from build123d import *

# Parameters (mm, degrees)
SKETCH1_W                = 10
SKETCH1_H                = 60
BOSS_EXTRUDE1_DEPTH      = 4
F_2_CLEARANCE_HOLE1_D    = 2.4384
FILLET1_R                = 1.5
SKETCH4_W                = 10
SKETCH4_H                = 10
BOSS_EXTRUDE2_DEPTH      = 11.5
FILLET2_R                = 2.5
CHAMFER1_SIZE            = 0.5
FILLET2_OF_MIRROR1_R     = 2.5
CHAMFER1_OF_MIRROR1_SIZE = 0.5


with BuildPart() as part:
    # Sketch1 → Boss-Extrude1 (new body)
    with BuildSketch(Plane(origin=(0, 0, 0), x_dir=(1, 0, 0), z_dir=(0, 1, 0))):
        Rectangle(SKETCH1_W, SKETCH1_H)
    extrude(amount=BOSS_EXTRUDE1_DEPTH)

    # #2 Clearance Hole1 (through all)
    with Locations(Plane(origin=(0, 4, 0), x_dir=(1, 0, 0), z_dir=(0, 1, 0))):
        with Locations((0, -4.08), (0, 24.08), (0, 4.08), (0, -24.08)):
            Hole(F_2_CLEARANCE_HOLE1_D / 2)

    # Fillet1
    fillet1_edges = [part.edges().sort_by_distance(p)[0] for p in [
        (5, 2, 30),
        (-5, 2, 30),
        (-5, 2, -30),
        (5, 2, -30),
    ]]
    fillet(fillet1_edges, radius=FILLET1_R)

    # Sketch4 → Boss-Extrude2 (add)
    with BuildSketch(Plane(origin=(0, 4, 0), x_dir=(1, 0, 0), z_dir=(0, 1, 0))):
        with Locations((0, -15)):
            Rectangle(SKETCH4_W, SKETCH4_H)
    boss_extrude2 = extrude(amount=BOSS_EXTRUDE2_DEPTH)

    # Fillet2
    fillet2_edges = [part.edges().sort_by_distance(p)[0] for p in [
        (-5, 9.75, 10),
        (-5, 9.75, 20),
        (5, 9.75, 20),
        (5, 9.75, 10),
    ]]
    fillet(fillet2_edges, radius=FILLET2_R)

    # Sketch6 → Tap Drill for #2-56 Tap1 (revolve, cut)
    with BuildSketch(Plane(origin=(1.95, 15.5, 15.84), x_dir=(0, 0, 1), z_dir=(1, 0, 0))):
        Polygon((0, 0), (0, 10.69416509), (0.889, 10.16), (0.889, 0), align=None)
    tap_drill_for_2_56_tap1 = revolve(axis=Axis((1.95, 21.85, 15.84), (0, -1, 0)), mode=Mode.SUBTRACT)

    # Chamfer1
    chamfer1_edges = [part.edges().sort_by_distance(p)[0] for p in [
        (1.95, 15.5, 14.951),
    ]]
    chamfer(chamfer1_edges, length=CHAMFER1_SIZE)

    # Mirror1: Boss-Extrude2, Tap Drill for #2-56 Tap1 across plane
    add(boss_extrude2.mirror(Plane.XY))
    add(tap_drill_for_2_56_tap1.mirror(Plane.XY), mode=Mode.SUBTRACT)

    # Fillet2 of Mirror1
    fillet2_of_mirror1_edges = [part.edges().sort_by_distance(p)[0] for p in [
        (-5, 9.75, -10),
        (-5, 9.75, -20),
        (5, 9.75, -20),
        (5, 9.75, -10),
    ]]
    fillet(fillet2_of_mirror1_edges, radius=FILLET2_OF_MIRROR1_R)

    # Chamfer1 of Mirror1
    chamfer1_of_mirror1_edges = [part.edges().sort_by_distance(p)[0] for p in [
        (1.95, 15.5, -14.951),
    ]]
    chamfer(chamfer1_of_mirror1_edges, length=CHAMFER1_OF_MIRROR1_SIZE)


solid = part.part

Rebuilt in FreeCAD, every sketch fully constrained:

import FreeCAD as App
import Part
import Sketcher

V = App.Vector
Q = App.Units.Quantity


def edges_at(feature, points):
    """Names of the edges that pass closest to the given points."""
    edges = feature.Shape.Edges
    near = lambda p: min(range(len(edges)), key=lambda i: edges[i].distToShape(Part.Vertex(*p))[0])
    return sorted({f"Edge{near(p) + 1}" for p in points})


def add_polygon(sketch, points):
    """Adds a closed chain of lines whose ends are joined by coincident constraints."""
    first, n = sketch.GeometryCount, len(points)
    for a, b in zip(points, points[1:] + points[:1]):
        sketch.addGeometry(Part.LineSegment(App.Vector(*a, 0), App.Vector(*b, 0)), False)
    for i in range(n):
        sketch.addConstraint(Sketcher.Constraint("Coincident", first + i, 2, first + (i + 1) % n, 1))

doc = App.newDocument("Part")
params = doc.addObject("Spreadsheet::Sheet", "Params")
for row, (alias, value) in enumerate([
    ("sketch1_width", "10 mm"),
    ("sketch1_height", "60 mm"),
    ("pad1_length", "4 mm"),
    ("hole_diameter", "2.4384 mm"),
    ("fillet_radius", "1.5 mm"),
    ("sketch3_width", "10 mm"),
    ("pad2_length", "11.5 mm"),
    ("fillet2_radius", "2.5 mm"),
    ("sketch4_width", "10.16 mm"),
    ("groove_angle", "360 deg"),
    ("chamfer_size", "0.5 mm"),
    ("fillet3_radius", "2.5 mm"),
    ("chamfer2_size", "0.5 mm"),
], start=1):
    params.set(f"A{row}", alias)
    params.set(f"B{row}", "=" + value)
    params.setAlias(f"B{row}", alias)

body = doc.addObject("PartDesign::Body", "Body")

sketch1 = doc.addObject("Sketcher::SketchObject", "Sketch")
body.addObject(sketch1)
sketch1.AttachmentSupport = (doc.XZ_Plane, [""])
sketch1.MapMode = "FlatFace"
add_polygon(sketch1, [(-5, -30), (-5, 30), (5, 30), (5, -30)])
sketch1.addConstraint([
    Sketcher.Constraint("Vertical", 0),
    Sketcher.Constraint("Horizontal", 1),
    Sketcher.Constraint("Vertical", 2),
    Sketcher.Constraint("Horizontal", 3),
    Sketcher.Constraint("Symmetric", 0, 2, 2, 2, -1, 1),
    Sketcher.Constraint("DistanceX", 1, 1, 1, 2, Q("10 mm")),
    Sketcher.Constraint("DistanceY", 0, 1, 0, 2, Q("60 mm")),
])
sketch1.setExpression("Constraints[9]", "Params.sketch1_width")
sketch1.setExpression("Constraints[10]", "Params.sketch1_height")
pad1 = doc.addObject("PartDesign::Pad", "Pad")
body.addObject(pad1)
pad1.Profile = sketch1
pad1.setExpression("Length", "Params.pad1_length")
pad1.Reversed = True

sketch2 = doc.addObject("Sketcher::SketchObject", "Sketch001")
body.addObject(sketch2)
sketch2.AttachmentSupport = (doc.XZ_Plane, [""])
sketch2.MapMode = "FlatFace"
sketch2.AttachmentOffset = App.Placement(V(0, 0, -4), App.Rotation())
sketch2.addGeometry([
    Part.Circle(V(0, 4.1, 0), V(0, 0, 1), 1.2),
    Part.Circle(V(0, -24.1, 0), V(0, 0, 1), 1.2),
    Part.Circle(V(0, -4.1, 0), V(0, 0, 1), 1.2),
    Part.Circle(V(0, 24.1, 0), V(0, 0, 1), 1.2),
], False)
sketch2.addConstraint([
    Sketcher.Constraint("Equal", 0, 1),
    Sketcher.Constraint("Equal", 1, 2),
    Sketcher.Constraint("Equal", 2, 3),
    Sketcher.Constraint("Symmetric", 0, 3, 2, 3, -1, 1),
    Sketcher.Constraint("Symmetric", 1, 3, 3, 3, -1, 1),
    Sketcher.Constraint("PointOnObject", 0, 3, -2),
    Sketcher.Constraint("PointOnObject", 1, 3, -2),
    Sketcher.Constraint("DistanceY", 1, 3, 2, 3, Q("20 mm")),
    Sketcher.Constraint("Diameter", 0, Q("2.4384 mm")),
    Sketcher.Constraint("DistanceY", -1, 1, 0, 3, Q("4.08 mm")),
])
doc.recompute()
hole = doc.addObject("PartDesign::Hole", "Hole")
body.addObject(hole)
hole.Profile = sketch2
hole.ThreadType = "None"
hole.setExpression("Diameter", "Params.hole_diameter")
hole.DepthType = "ThroughAll"
hole.Reversed = True
doc.recompute()

fillet = doc.addObject("PartDesign::Fillet", "Fillet")
body.addObject(fillet)
fillet.Base = (hole, edges_at(hole, [
    (5, 2, 30),
    (-5, 2, 30),
    (-5, 2, -30),
    (5, 2, -30),
]))
fillet.setExpression("Radius", "Params.fillet_radius")

sketch3 = doc.addObject("Sketcher::SketchObject", "Sketch002")
body.addObject(sketch3)
sketch3.AttachmentSupport = (doc.XZ_Plane, [""])
sketch3.MapMode = "FlatFace"
sketch3.AttachmentOffset = App.Placement(V(0, 0, -4), App.Rotation())
add_polygon(sketch3, [(-5, 10), (-5, 20), (5, 20), (5, 10)])
sketch3.addConstraint([
    Sketcher.Constraint("Vertical", 0),
    Sketcher.Constraint("Horizontal", 1),
    Sketcher.Constraint("Vertical", 2),
    Sketcher.Constraint("Horizontal", 3),
    Sketcher.Constraint("Equal", 3, 0),
    Sketcher.Constraint("DistanceX", 1, 1, 1, 2, Q("10 mm")),
    Sketcher.Constraint("DistanceX", 0, 2, -1, 1, Q("5 mm")),
    Sketcher.Constraint("DistanceY", -1, 1, 0, 2, Q("20 mm")),
])
sketch3.setExpression("Constraints[9]", "Params.sketch3_width")
pad2 = doc.addObject("PartDesign::Pad", "Pad001")
body.addObject(pad2)
pad2.Profile = sketch3
pad2.setExpression("Length", "Params.pad2_length")
pad2.Reversed = True
doc.recompute()

fillet2 = doc.addObject("PartDesign::Fillet", "Fillet001")
body.addObject(fillet2)
fillet2.Base = (pad2, edges_at(pad2, [
    (-5, 9.75, 10),
    (-5, 9.75, 20),
    (5, 9.75, 20),
    (5, 9.75, 10),
]))
fillet2.setExpression("Radius", "Params.fillet2_radius")

sketch4 = doc.addObject("Sketcher::SketchObject", "Sketch003")
body.addObject(sketch4)
sketch4.AttachmentSupport = (doc.YZ_Plane, [""])
sketch4.MapMode = "FlatFace"
sketch4.AttachmentOffset = App.Placement(V(0, 0, 1.95), App.Rotation())
add_polygon(sketch4, [(4.8, 15.8), (15.5, 15.8), (15.5, 16.7), (5.3, 16.7)])
sketch4.addGeometry(Part.LineSegment(V(15.5, 15.8, 0), V(4.8, 15.8, 0)), True)
sketch4.addConstraint([
    Sketcher.Constraint("Horizontal", 0),
    Sketcher.Constraint("Vertical", 1),
    Sketcher.Constraint("Horizontal", 2),
    Sketcher.Constraint("Horizontal", 4),
    Sketcher.Constraint("Coincident", 4, 1, 0, 2),
    Sketcher.Constraint("Equal", 0, 4),
    Sketcher.Constraint("Angle", 3, Q("-121 deg")),
    Sketcher.Constraint("DistanceX", 2, 2, 2, 1, Q("10.16 mm")),
    Sketcher.Constraint("DistanceX", -1, 1, 0, 2, Q("15.5 mm")),
    Sketcher.Constraint("DistanceY", 1, 1, 1, 2, Q("0.889 mm")),
    Sketcher.Constraint("DistanceY", -1, 1, 0, 2, Q("15.84 mm")),
])
sketch4.setExpression("Constraints[11]", "Params.sketch4_width")
groove = doc.addObject("PartDesign::Groove", "Groove")
body.addObject(groove)
groove.Profile = sketch4
groove.ReferenceAxis = (sketch4, ["Axis0"])
groove.setExpression("Angle", "Params.groove_angle")
doc.recompute()

chamfer = doc.addObject("PartDesign::Chamfer", "Chamfer")
body.addObject(chamfer)
chamfer.Base = (groove, edges_at(groove, [(1.95, 15.5, 14.951)]))
chamfer.setExpression("Size", "Params.chamfer_size")
doc.recompute()

mirrored = doc.addObject("PartDesign::Mirrored", "Mirrored")
body.addObject(mirrored)
mirrored.Originals = [pad2, groove]
mirrored.MirrorPlane = (doc.XY_Plane, [""])
body.Tip = mirrored
doc.recompute()

fillet3 = doc.addObject("PartDesign::Fillet", "Fillet002")
body.addObject(fillet3)
fillet3.Base = (mirrored, edges_at(mirrored, [
    (-5, 9.75, -10),
    (-5, 9.75, -20),
    (5, 9.75, -20),
    (5, 9.75, -10),
]))
fillet3.setExpression("Radius", "Params.fillet3_radius")
doc.recompute()

chamfer2 = doc.addObject("PartDesign::Chamfer", "Chamfer001")
body.addObject(chamfer2)
chamfer2.Base = (fillet3, edges_at(fillet3, [(1.95, 15.5, -14.951)]))
chamfer2.setExpression("Size", "Params.chamfer2_size")

doc.recompute()
